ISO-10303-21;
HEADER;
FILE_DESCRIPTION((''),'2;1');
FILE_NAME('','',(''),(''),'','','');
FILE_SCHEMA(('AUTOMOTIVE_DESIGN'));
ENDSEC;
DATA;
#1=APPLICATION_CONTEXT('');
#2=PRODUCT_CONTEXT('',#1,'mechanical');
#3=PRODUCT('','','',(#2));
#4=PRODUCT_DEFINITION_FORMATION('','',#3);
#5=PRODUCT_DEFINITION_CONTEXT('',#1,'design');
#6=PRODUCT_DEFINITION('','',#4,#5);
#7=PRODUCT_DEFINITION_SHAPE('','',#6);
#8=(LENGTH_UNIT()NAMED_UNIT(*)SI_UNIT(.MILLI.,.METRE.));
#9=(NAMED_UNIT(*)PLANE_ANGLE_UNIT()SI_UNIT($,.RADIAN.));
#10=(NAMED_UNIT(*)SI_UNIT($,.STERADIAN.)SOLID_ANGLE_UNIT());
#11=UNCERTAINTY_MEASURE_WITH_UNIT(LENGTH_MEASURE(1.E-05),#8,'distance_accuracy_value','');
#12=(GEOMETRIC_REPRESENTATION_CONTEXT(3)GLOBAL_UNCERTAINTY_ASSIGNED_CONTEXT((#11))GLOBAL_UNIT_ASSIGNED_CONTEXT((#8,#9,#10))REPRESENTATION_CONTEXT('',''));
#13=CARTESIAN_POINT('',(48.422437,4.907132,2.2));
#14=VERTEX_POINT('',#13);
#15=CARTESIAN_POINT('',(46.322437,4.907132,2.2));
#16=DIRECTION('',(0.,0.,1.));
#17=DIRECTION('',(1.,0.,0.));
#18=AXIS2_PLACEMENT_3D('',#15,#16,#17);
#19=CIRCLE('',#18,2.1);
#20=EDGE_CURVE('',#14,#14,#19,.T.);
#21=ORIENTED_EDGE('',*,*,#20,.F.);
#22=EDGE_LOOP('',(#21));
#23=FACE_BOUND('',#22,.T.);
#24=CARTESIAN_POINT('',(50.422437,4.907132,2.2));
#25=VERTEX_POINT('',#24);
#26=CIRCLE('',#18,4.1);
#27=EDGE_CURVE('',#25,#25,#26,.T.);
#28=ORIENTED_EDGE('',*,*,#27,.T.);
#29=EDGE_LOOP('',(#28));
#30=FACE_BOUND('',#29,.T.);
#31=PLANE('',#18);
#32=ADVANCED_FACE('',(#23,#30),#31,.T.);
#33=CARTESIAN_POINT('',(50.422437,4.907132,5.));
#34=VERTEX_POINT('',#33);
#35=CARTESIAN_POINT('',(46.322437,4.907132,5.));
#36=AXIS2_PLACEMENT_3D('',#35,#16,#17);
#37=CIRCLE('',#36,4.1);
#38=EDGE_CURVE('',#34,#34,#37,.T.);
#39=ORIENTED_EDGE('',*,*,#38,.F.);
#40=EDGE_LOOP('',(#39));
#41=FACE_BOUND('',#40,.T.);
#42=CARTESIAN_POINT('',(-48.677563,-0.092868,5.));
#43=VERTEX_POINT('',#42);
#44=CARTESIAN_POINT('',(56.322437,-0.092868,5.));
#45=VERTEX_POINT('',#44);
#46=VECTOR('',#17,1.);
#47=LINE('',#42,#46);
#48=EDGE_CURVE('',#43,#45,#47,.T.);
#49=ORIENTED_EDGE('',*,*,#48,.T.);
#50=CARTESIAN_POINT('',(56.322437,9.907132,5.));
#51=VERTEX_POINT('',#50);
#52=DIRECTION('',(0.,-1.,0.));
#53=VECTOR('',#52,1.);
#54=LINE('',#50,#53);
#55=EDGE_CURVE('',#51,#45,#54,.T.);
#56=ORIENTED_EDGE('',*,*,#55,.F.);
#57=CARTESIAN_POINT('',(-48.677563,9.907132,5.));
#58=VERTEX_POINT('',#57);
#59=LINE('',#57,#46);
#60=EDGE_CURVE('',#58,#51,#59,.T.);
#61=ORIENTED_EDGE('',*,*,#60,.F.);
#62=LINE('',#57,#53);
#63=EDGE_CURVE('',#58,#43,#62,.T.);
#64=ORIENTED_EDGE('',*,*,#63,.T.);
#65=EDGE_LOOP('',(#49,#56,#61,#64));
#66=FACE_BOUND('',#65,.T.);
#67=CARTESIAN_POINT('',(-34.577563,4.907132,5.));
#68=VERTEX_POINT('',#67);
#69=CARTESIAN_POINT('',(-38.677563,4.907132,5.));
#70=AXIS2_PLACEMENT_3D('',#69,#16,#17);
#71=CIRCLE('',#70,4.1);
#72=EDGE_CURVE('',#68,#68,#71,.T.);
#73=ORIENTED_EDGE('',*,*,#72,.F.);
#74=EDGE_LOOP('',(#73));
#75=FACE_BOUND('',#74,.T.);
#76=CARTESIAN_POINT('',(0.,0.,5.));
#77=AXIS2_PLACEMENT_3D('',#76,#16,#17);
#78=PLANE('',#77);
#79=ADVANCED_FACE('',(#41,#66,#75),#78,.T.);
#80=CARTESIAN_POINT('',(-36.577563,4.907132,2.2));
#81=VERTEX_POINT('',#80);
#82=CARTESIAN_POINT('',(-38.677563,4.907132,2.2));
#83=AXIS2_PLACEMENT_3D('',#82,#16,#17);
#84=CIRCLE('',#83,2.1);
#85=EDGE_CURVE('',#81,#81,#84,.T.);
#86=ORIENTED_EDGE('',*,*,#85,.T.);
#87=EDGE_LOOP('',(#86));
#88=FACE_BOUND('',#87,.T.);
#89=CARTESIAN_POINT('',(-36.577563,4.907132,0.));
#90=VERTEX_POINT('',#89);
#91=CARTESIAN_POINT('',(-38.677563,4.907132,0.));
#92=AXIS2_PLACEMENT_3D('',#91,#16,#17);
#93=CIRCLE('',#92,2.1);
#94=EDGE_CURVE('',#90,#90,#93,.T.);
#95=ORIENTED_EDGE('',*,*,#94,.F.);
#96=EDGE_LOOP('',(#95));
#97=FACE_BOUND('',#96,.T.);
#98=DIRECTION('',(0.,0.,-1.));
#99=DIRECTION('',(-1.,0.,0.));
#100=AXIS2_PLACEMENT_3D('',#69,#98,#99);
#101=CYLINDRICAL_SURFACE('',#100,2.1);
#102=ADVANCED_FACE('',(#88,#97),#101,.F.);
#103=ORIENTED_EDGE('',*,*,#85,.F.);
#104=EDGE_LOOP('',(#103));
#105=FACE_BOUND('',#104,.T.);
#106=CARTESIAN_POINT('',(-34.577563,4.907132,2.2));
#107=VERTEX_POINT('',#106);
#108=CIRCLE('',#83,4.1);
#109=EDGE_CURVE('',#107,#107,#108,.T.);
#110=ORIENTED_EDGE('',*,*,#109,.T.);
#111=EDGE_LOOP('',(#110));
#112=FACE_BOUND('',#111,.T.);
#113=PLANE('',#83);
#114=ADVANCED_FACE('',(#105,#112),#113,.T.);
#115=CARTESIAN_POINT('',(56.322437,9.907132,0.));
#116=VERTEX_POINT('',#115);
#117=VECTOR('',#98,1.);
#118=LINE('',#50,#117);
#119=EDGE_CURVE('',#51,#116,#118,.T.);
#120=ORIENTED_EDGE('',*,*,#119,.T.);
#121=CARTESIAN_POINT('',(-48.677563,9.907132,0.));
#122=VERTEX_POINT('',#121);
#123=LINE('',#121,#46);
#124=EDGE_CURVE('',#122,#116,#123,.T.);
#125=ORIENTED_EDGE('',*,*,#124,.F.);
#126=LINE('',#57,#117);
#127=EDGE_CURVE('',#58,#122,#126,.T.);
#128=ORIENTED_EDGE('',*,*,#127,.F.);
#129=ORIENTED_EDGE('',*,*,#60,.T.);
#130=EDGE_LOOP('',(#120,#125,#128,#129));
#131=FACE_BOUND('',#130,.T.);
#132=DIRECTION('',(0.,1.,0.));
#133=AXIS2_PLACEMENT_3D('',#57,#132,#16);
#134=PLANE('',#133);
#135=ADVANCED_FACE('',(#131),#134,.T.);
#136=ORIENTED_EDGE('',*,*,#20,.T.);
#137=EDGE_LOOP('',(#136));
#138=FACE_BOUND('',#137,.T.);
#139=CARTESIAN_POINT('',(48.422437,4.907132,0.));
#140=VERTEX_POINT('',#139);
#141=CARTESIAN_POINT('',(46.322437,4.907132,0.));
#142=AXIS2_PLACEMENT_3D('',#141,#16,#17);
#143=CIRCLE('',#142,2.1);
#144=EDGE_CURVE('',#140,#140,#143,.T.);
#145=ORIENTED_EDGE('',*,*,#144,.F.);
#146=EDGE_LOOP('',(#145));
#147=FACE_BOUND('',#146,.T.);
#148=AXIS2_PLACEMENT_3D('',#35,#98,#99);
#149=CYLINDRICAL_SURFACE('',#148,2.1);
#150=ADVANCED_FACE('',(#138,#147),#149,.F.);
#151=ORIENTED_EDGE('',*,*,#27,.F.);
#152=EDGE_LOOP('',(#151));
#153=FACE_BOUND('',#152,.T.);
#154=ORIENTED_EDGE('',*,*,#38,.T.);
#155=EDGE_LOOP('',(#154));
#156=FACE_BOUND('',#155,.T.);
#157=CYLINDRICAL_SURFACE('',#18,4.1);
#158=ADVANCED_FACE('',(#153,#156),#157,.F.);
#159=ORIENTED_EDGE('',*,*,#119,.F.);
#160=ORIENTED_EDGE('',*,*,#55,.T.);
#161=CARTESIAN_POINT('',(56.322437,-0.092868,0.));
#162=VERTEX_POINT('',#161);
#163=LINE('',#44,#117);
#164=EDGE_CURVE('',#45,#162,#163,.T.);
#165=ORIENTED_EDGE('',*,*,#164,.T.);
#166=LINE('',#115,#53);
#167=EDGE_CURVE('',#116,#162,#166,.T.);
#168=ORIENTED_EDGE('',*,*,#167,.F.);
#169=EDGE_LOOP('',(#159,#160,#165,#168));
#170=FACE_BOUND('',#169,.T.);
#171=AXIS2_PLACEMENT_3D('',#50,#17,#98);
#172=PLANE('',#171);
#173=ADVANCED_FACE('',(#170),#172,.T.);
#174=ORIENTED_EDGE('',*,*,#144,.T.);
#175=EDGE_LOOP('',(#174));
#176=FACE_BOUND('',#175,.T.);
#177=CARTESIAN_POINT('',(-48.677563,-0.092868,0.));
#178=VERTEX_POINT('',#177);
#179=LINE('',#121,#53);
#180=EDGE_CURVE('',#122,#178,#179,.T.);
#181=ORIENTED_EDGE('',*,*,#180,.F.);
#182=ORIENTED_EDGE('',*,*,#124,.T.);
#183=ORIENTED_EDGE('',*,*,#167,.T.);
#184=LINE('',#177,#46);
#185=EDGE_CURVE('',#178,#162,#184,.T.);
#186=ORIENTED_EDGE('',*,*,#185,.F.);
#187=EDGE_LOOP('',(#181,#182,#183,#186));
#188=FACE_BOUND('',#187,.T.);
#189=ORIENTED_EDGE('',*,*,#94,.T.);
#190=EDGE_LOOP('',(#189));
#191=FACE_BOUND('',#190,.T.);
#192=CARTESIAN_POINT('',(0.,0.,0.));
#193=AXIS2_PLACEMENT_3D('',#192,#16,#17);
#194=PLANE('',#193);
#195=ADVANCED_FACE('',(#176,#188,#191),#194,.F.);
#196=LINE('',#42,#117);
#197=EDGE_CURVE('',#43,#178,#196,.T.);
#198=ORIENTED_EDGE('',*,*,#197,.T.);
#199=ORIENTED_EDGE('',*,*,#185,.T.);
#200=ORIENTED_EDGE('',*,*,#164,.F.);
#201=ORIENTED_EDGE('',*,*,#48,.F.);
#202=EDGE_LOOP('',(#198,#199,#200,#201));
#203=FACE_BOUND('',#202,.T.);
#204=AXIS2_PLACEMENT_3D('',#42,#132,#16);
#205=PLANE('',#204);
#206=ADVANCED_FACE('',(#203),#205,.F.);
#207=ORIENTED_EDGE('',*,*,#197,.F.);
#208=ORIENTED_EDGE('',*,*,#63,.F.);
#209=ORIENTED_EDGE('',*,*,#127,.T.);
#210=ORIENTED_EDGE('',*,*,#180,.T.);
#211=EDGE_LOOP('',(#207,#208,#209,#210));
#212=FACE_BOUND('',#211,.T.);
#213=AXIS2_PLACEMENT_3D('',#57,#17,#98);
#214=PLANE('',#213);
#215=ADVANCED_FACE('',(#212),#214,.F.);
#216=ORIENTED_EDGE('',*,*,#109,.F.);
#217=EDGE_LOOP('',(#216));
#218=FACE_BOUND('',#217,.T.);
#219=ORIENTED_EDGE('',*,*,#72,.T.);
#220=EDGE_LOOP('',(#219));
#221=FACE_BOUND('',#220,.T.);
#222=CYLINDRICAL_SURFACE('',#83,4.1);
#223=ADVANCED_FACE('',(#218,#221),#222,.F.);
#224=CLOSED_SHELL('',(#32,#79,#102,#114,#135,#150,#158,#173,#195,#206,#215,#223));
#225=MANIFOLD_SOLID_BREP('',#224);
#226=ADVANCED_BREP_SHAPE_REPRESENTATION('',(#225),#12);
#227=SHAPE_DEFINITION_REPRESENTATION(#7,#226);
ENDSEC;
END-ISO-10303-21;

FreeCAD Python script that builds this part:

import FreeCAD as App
import Part
import Sketcher
Q = App.Units.Quantity


def add_polygon(sketch, points):
    """Adds a closed chain of lines whose ends are joined by coincident constraints."""
    first, n = sketch.GeometryCount, len(points)
    for a, b in zip(points, points[1:] + points[:1]):
        sketch.addGeometry(Part.LineSegment(App.Vector(*a, 0), App.Vector(*b, 0)), False)
    for i in range(n):
        sketch.addConstraint(Sketcher.Constraint("Coincident", first + i, 2, first + (i + 1) % n, 1))

doc = App.newDocument("Part")
body = doc.addObject("PartDesign::Body", "Body")

# Sketch on XY plane
sketch1 = body.newObject("Sketcher::SketchObject", "Sketch")
sketch1.AttachmentSupport = (doc.getObject("XY_Plane"), [""])
sketch1.MapMode = "FlatFace"
add_polygon(sketch1, [(-48.677563, 9.907132), (-48.677563, -0.092868), (56.322437, -0.092868), (56.322437, 9.907132)])  # lines 0-3
sketch1.addGeometry(Part.Circle(App.Vector(-38.677563, 4.907132, 0), App.Vector(0, 0, 1), 2.1), False)  # 4
sketch1.addGeometry(Part.Circle(App.Vector(46.322437, 4.907132, 0), App.Vector(0, 0, 1), 2.1), False)  # 5
sketch1.addConstraint(Sketcher.Constraint("Vertical", 0))
sketch1.addConstraint(Sketcher.Constraint("Horizontal", 1))
sketch1.addConstraint(Sketcher.Constraint("Vertical", 2))
sketch1.addConstraint(Sketcher.Constraint("Horizontal", 3))
sketch1.addConstraint(Sketcher.Constraint("Equal", 4, 5))
sketch1.addConstraint(Sketcher.Constraint("Horizontal", 4, 3, 5, 3))
sketch1.addConstraint(Sketcher.Constraint("Diameter", 4, Q("4.2 mm")))
sketch1.addConstraint(Sketcher.Constraint("DistanceX", 1, 1, 1, 2, Q("105 mm")))
sketch1.addConstraint(Sketcher.Constraint("DistanceY", 0, 2, 0, 1, Q("10 mm")))
sketch1.addConstraint(Sketcher.Constraint("DistanceX", 4, 3, 5, 3, Q("85 mm")))
sketch1.addConstraint(Sketcher.Constraint("DistanceX", 0, 2, 4, 3, Q("10 mm")))
sketch1.addConstraint(Sketcher.Constraint("DistanceY", 0, 2, 4, 3, Q("5 mm")))
sketch1.addConstraint(Sketcher.Constraint("DistanceX", 4, 3, -1, 1, Q("38.677563 mm")))
sketch1.addConstraint(Sketcher.Constraint("DistanceY", -1, 1, 4, 3, Q("4.907132 mm")))
pad1 = body.newObject("PartDesign::Pad", "Pad")
pad1.Profile = sketch1
pad1.Length = 5

# Sketch on XY plane
sketch2 = body.newObject("Sketcher::SketchObject", "Sketch001")
sketch2.AttachmentSupport = (doc.getObject("XY_Plane"), [""])
sketch2.MapMode = "FlatFace"
sketch2.AttachmentOffset = App.Placement(App.Vector(0, 0, 5), App.Rotation())
sketch2.addGeometry(Part.Circle(App.Vector(-38.677563, 4.907132, 0), App.Vector(0, 0, 1), 4.1), False)
sketch2.addGeometry(Part.Circle(App.Vector(46.322437, 4.907132, 0), App.Vector(0, 0, 1), 4.1), False)
sketch2.addConstraint(Sketcher.Constraint("Equal", 0, 1))
sketch2.addConstraint(Sketcher.Constraint("Horizontal", 0, 3, 1, 3))
sketch2.addConstraint(Sketcher.Constraint("Diameter", 0, Q("8.2 mm")))
sketch2.addConstraint(Sketcher.Constraint("DistanceX", 0, 3, 1, 3, Q("85 mm")))
sketch2.addConstraint(Sketcher.Constraint("DistanceX", 0, 3, -1, 1, Q("38.677563 mm")))
sketch2.addConstraint(Sketcher.Constraint("DistanceY", -1, 1, 0, 3, Q("4.907132 mm")))
pocket1 = body.newObject("PartDesign::Pocket", "Pocket")
pocket1.Profile = sketch2
pocket1.Length = 2.8

doc.recompute()
